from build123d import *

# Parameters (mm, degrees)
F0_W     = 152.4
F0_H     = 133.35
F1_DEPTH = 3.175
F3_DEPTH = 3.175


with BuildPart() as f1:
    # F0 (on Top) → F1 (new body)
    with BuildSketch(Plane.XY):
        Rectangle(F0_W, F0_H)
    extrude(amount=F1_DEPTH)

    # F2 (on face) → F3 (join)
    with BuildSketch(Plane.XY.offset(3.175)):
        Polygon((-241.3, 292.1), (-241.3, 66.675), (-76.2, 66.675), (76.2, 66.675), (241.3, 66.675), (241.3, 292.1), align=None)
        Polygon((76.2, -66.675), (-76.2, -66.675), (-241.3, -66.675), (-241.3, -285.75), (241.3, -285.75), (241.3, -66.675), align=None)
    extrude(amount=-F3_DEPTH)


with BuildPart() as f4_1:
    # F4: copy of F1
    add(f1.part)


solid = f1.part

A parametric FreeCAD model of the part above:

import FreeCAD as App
import Part
import Sketcher
Q = App.Units.Quantity

doc = App.newDocument("Part")
body = doc.addObject("PartDesign::Body", "Body")

sketch1 = body.newObject("Sketcher::SketchObject", "Sketch")
sketch1.AttachmentSupport = (doc.getObject("XY_Plane"), [""])
sketch1.MapMode = "FlatFace"
sketch1.addGeometry([
    Part.LineSegment(App.Vector(-76, 67, 0), App.Vector(-76, -67, 0)),
    Part.LineSegment(App.Vector(-76, -67, 0), App.Vector(76, -67, 0)),
    Part.LineSegment(App.Vector(76, -67, 0), App.Vector(76, 67, 0)),
    Part.LineSegment(App.Vector(76, 67, 0), App.Vector(-76, 67, 0)),
], False)
sketch1.addConstraint([
    Sketcher.Constraint("Coincident", 0, 2, 1, 1),
    Sketcher.Constraint("Coincident", 1, 2, 2, 1),
    Sketcher.Constraint("Coincident", 2, 2, 3, 1),
    Sketcher.Constraint("Coincident", 3, 2, 0, 1),
    Sketcher.Constraint("Vertical", 0),
    Sketcher.Constraint("Horizontal", 1),
    Sketcher.Constraint("Vertical", 2),
    Sketcher.Constraint("Horizontal", 3),
    Sketcher.Constraint("Symmetric", 0, 2, 2, 2, -1, 1),
    Sketcher.Constraint("DistanceX", 1, 1, 1, 2, Q("6 in")),
    Sketcher.Constraint("DistanceY", 0, 2, 0, 1, Q("5.25 in")),
])
pad1 = body.newObject("PartDesign::Pad", "Pad")
pad1.Profile = sketch1
pad1.Length = Q("0.125 in")

sketch2 = body.newObject("Sketcher::SketchObject", "Sketch001")
sketch2.AttachmentSupport = (doc.getObject("XY_Plane"), [""])
sketch2.MapMode = "FlatFace"
sketch2.AttachmentOffset = App.Placement(App.Vector(0, 0, 0.125 * 25.4), App.Rotation())
sketch2.addGeometry([
    Part.LineSegment(App.Vector(-241, 292, 0), App.Vector(-241, 67, 0)),
    Part.LineSegment(App.Vector(-241, 67, 0), App.Vector(241, 67, 0)),
    Part.LineSegment(App.Vector(241, 67, 0), App.Vector(241, 292, 0)),
    Part.LineSegment(App.Vector(241, 292, 0), App.Vector(-241, 292, 0)),
    Part.LineSegment(App.Vector(-241, -67, 0), App.Vector(-241, -286, 0)),
    Part.LineSegment(App.Vector(-241, -286, 0), App.Vector(241, -286, 0)),
    Part.LineSegment(App.Vector(241, -286, 0), App.Vector(241, -67, 0)),
    Part.LineSegment(App.Vector(241, -67, 0), App.Vector(-241, -67, 0)),
], False)
sketch2.addConstraint([
    Sketcher.Constraint("Coincident", 0, 2, 1, 1),
    Sketcher.Constraint("Coincident", 1, 2, 2, 1),
    Sketcher.Constraint("Coincident", 2, 2, 3, 1),
    Sketcher.Constraint("Coincident", 3, 2, 0, 1),
    Sketcher.Constraint("Coincident", 4, 2, 5, 1),
    Sketcher.Constraint("Coincident", 5, 2, 6, 1),
    Sketcher.Constraint("Coincident", 6, 2, 7, 1),
    Sketcher.Constraint("Coincident", 7, 2, 4, 1),
    Sketcher.Constraint("Vertical", 0),
    Sketcher.Constraint("Horizontal", 1),
    Sketcher.Constraint("Vertical", 2),
    Sketcher.Constraint("Horizontal", 3),
    Sketcher.Constraint("Vertical", 4),
    Sketcher.Constraint("Horizontal", 5),
    Sketcher.Constraint("Vertical", 6),
    Sketcher.Constraint("Horizontal", 7),
    Sketcher.Constraint("Symmetric", 0, 2, 6, 2, -1, 1),
    Sketcher.Constraint("Vertical", 3, 2, 4, 2),
    Sketcher.Constraint("Vertical", 2, 2, 5, 2),
    Sketcher.Constraint("DistanceX", 1, 1, 1, 2, Q("19 in")),
    Sketcher.Constraint("DistanceY", -1, 1, 2, 2, Q("11.5 in")),
    Sketcher.Constraint("DistanceY", 0, 2, 0, 1, Q("8.875 in")),
    Sketcher.Constraint("DistanceY", 4, 2, 4, 1, Q("8.625 in")),
])
pad2 = body.newObject("PartDesign::Pad", "Pad001")
pad2.Profile = sketch2
pad2.Length = Q("0.125 in")
pad2.Reversed = True
body2 = doc.addObject("PartDesign::Body", "Body001")
doc.recompute()

body2.BaseFeature = body
doc.recompute()
body.Visibility = False

doc.recompute()
